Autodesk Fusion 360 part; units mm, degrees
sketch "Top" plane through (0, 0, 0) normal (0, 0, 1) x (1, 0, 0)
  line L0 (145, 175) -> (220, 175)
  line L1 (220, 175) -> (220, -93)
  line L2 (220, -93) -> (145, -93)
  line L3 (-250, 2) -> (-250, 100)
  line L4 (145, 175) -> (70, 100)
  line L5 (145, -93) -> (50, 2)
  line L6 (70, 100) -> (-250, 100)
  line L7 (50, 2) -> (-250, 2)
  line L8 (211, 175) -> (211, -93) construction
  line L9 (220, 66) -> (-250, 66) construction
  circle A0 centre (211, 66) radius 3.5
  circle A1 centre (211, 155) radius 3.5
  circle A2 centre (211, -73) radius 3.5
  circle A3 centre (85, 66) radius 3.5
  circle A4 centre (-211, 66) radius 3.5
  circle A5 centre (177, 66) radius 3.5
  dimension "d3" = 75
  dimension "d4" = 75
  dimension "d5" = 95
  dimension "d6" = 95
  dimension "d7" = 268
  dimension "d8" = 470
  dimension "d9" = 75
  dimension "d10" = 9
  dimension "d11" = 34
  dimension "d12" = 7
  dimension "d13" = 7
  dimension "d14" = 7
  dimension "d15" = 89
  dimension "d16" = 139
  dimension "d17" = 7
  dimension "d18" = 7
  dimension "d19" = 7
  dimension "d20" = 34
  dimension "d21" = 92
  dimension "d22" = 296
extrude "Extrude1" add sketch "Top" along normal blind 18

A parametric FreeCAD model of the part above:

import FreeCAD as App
import Part
import Sketcher

V = App.Vector


def add_polygon(sketch, points):
    """Adds a closed chain of lines whose ends are joined by coincident constraints."""
    first, n = sketch.GeometryCount, len(points)
    for a, b in zip(points, points[1:] + points[:1]):
        sketch.addGeometry(Part.LineSegment(App.Vector(*a, 0), App.Vector(*b, 0)), False)
    for i in range(n):
        sketch.addConstraint(Sketcher.Constraint("Coincident", first + i, 2, first + (i + 1) % n, 1))

doc = App.newDocument("Part")
body = doc.addObject("PartDesign::Body", "Body")

# Sketch on XY plane
sketch1 = doc.addObject("Sketcher::SketchObject", "Sketch")
body.addObject(sketch1)
sketch1.AttachmentSupport = (doc.XY_Plane, [""])
sketch1.MapMode = "FlatFace"
add_polygon(sketch1, [(220, 175), (145, 175), (70, 100), (-250, 100), (-250, 2), (50, 2), (145, -93), (220, -93)])  # lines 0-7
sketch1.addGeometry(Part.Circle(V(211, -73, 0), V(0, 0, 1), 3.5), False)  # 8
sketch1.addGeometry(Part.Circle(V(-211, 66, 0), V(0, 0, 1), 3.5), False)  # 9
sketch1.addGeometry(Part.Circle(V(85, 66, 0), V(0, 0, 1), 3.5), False)  # 10
sketch1.addGeometry(Part.Circle(V(177, 66, 0), V(0, 0, 1), 3.5), False)  # 11
sketch1.addGeometry(Part.Circle(V(211, 66, 0), V(0, 0, 1), 3.5), False)  # 12
sketch1.addGeometry(Part.Circle(V(211, 155, 0), V(0, 0, 1), 3.5), False)  # 13
sketch1.addConstraint([
    Sketcher.Constraint("Horizontal", 0),
    Sketcher.Constraint("Horizontal", 2),
    Sketcher.Constraint("Vertical", 3),
    Sketcher.Constraint("Horizontal", 4),
    Sketcher.Constraint("Horizontal", 6),
    Sketcher.Constraint("Vertical", 7),
    Sketcher.Constraint("Equal", 8, 9),
    Sketcher.Constraint("Equal", 9, 10),
    Sketcher.Constraint("Equal", 10, 11),
    Sketcher.Constraint("Equal", 11, 12),
    Sketcher.Constraint("Equal", 12, 13),
    Sketcher.Constraint("Symmetric", 9, 3, 12, 3, -2),
    Sketcher.Constraint("Perpendicular", 1, 5),
    Sketcher.Constraint("Horizontal", 9, 3, 10, 3),
    Sketcher.Constraint("Horizontal", 10, 3, 11, 3),
    Sketcher.Constraint("Vertical", 8, 3, 12, 3),
    Sketcher.Constraint("Vertical", 12, 3, 13, 3),
    Sketcher.Constraint("Vertical", 0, 2, 5, 2),
    Sketcher.Constraint("Diameter", 8, 7.0),
    Sketcher.Constraint("DistanceX", 0, 2, 0, 1, 75.0),
    Sketcher.Constraint("DistanceY", 7, 1, 7, 2, 268.0),
    Sketcher.Constraint("DistanceY", 8, 3, 9, 3, 139.0),
    Sketcher.Constraint("DistanceX", 9, 3, 10, 3, 296.0),
    Sketcher.Constraint("DistanceX", 10, 3, 11, 3, 92.0),
    Sketcher.Constraint("DistanceX", 11, 3, 8, 3, 34.0),
    Sketcher.Constraint("DistanceY", 12, 3, 13, 3, 89.0),
    Sketcher.Constraint("DistanceY", 10, 3, 1, 2, 34.0),
    Sketcher.Constraint("DistanceX", 1, 2, 0, 2, 75.0),
    Sketcher.Constraint("DistanceY", 1, 2, 0, 2, 75.0),
    Sketcher.Constraint("DistanceY", 8, 3, 4, 2, 75.0),
    Sketcher.Constraint("DistanceX", 8, 3, 6, 2, 9.0),
    Sketcher.Constraint("DistanceX", 2, 2, 2, 1, 320.0),
    Sketcher.Constraint("DistanceY", 8, 3, -1, 1, 73.0),
])
pad1 = doc.addObject("PartDesign::Pad", "Pad")
body.addObject(pad1)
pad1.Profile = sketch1
pad1.Length = 18

doc.recompute()
